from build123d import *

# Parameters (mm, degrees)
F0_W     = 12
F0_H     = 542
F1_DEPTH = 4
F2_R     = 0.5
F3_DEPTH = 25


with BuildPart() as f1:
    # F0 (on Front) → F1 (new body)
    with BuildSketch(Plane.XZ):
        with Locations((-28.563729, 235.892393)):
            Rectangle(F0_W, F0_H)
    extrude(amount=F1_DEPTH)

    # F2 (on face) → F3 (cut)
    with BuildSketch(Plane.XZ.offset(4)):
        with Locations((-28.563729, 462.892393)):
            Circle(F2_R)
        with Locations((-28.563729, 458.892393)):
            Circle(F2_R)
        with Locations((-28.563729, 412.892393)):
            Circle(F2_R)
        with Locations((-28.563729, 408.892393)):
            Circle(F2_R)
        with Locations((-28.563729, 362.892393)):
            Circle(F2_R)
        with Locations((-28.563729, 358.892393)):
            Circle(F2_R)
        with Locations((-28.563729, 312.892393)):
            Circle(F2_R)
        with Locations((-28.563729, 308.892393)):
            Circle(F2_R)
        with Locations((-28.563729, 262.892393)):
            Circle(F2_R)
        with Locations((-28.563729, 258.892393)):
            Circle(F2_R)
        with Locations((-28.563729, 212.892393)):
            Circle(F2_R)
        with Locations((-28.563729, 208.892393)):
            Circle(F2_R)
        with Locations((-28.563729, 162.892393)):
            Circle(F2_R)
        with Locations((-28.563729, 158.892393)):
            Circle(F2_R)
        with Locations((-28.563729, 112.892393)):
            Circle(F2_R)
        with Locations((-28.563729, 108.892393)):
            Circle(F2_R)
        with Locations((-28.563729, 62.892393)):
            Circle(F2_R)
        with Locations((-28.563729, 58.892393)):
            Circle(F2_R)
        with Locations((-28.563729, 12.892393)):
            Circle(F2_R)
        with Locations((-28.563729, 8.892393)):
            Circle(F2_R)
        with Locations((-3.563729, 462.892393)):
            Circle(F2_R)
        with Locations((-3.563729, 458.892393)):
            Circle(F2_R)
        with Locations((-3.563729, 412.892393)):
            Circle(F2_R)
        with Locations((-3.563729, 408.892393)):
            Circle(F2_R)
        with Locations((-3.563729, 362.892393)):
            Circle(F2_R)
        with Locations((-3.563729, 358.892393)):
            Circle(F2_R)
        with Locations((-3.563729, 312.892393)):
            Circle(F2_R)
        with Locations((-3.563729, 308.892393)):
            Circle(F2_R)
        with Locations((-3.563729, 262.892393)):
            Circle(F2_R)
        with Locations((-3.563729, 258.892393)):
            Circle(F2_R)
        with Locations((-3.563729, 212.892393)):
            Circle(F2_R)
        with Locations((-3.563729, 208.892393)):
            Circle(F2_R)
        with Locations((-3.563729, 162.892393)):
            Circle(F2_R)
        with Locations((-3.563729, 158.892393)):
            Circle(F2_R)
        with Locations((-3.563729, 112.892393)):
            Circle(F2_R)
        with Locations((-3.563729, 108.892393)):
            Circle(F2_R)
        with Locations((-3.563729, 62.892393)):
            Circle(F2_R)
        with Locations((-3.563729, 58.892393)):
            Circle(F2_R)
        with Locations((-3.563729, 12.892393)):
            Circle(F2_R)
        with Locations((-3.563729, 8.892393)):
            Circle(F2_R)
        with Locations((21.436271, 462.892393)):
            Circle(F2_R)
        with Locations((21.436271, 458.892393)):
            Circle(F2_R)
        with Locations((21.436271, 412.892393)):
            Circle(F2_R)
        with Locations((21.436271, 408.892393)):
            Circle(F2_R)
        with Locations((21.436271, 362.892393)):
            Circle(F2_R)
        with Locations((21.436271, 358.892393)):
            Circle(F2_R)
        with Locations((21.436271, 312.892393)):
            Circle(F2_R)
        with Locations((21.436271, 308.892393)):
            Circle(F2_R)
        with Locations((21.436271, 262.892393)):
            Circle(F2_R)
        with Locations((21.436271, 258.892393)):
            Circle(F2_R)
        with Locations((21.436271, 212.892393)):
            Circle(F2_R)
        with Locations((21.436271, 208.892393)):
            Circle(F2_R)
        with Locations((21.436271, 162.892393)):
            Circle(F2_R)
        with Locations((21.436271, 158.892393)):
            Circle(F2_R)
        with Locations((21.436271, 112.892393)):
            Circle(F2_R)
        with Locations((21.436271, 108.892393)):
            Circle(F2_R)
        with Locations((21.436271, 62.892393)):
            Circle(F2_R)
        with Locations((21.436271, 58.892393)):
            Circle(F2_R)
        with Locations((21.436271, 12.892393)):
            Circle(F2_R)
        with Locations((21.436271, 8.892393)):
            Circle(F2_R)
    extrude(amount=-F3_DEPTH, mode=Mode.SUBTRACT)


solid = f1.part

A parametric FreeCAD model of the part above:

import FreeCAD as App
import Part
import Sketcher
from FreeCAD import Vector

doc = App.newDocument("Part")
body = doc.addObject("PartDesign::Body", "Body")

sketch1 = body.newObject("Sketcher::SketchObject", "Sketch")
sketch1.AttachmentSupport = (doc.getObject("XZ_Plane"), [""])
sketch1.MapMode = "FlatFace"
sketch1.addGeometry(Part.LineSegment(Vector(-35, 507, 0), Vector(-35, -35, 0)), False)
sketch1.addGeometry(Part.LineSegment(Vector(-35, -35, 0), Vector(-23, -35, 0)), False)
sketch1.addGeometry(Part.LineSegment(Vector(-23, -35, 0), Vector(-23, 507, 0)), False)
sketch1.addGeometry(Part.LineSegment(Vector(-23, 507, 0), Vector(-35, 507, 0)), False)
sketch1.addConstraint(Sketcher.Constraint("Coincident", 0, 2, 1, 1))
sketch1.addConstraint(Sketcher.Constraint("Coincident", 1, 2, 2, 1))
sketch1.addConstraint(Sketcher.Constraint("Coincident", 2, 2, 3, 1))
sketch1.addConstraint(Sketcher.Constraint("Coincident", 3, 2, 0, 1))
sketch1.addConstraint(Sketcher.Constraint("Vertical", 0))
sketch1.addConstraint(Sketcher.Constraint("Horizontal", 1))
sketch1.addConstraint(Sketcher.Constraint("Vertical", 2))
sketch1.addConstraint(Sketcher.Constraint("Horizontal", 3))
sketch1.addConstraint(Sketcher.Constraint("DistanceX", 1, 1, 1, 2, 12.0))
sketch1.addConstraint(Sketcher.Constraint("DistanceY", 0, 2, 0, 1, 542.0))
sketch1.addConstraint(Sketcher.Constraint("DistanceX", 0, 2, -1, 1, 34.563729))
sketch1.addConstraint(Sketcher.Constraint("DistanceY", 0, 2, -1, 1, 35.107607))
pad1 = body.newObject("PartDesign::Pad", "Pad")
pad1.Profile = sketch1
pad1.Length = 4

sketch2 = body.newObject("Sketcher::SketchObject", "Sketch001")
sketch2.AttachmentSupport = (doc.getObject("XZ_Plane"), [""])
sketch2.MapMode = "FlatFace"
sketch2.AttachmentOffset = App.Placement(Vector(0, 0, 4), App.Rotation())
sketch2.addGeometry(Part.Circle(Vector(-28.6, 462.9, 0), Vector(0, 0, 1), 0.5), False)
sketch2.addGeometry(Part.Circle(Vector(-28.6, 458.9, 0), Vector(0, 0, 1), 0.5), False)
sketch2.addGeometry(Part.Circle(Vector(-28.6, 412.9, 0), Vector(0, 0, 1), 0.5), False)
sketch2.addGeometry(Part.Circle(Vector(-28.6, 408.9, 0), Vector(0, 0, 1), 0.5), False)
sketch2.addGeometry(Part.Circle(Vector(-28.6, 362.9, 0), Vector(0, 0, 1), 0.5), False)
sketch2.addGeometry(Part.Circle(Vector(-28.6, 358.9, 0), Vector(0, 0, 1), 0.5), False)
sketch2.addGeometry(Part.Circle(Vector(-28.6, 312.9, 0), Vector(0, 0, 1), 0.5), False)
sketch2.addGeometry(Part.Circle(Vector(-28.6, 308.9, 0), Vector(0, 0, 1), 0.5), False)
sketch2.addGeometry(Part.Circle(Vector(-28.6, 262.9, 0), Vector(0, 0, 1), 0.5), False)
sketch2.addGeometry(Part.Circle(Vector(-28.6, 258.9, 0), Vector(0, 0, 1), 0.5), False)
sketch2.addGeometry(Part.Circle(Vector(-28.6, 212.9, 0), Vector(0, 0, 1), 0.5), False)
sketch2.addGeometry(Part.Circle(Vector(-28.6, 208.9, 0), Vector(0, 0, 1), 0.5), False)
sketch2.addGeometry(Part.Circle(Vector(-28.6, 162.9, 0), Vector(0, 0, 1), 0.5), False)
sketch2.addGeometry(Part.Circle(Vector(-28.6, 158.9, 0), Vector(0, 0, 1), 0.5), False)
sketch2.addGeometry(Part.Circle(Vector(-28.6, 112.9, 0), Vector(0, 0, 1), 0.5), False)
sketch2.addGeometry(Part.Circle(Vector(-28.6, 108.9, 0), Vector(0, 0, 1), 0.5), False)
sketch2.addGeometry(Part.Circle(Vector(-28.6, 62.9, 0), Vector(0, 0, 1), 0.5), False)
sketch2.addGeometry(Part.Circle(Vector(-28.6, 58.9, 0), Vector(0, 0, 1), 0.5), False)
sketch2.addGeometry(Part.Circle(Vector(-28.6, 12.9, 0), Vector(0, 0, 1), 0.5), False)
sketch2.addGeometry(Part.Circle(Vector(-28.6, 8.9, 0), Vector(0, 0, 1), 0.5), False)
sketch2.addGeometry(Part.Circle(Vector(-3.6, 462.9, 0), Vector(0, 0, 1), 0.5), False)
sketch2.addGeometry(Part.Circle(Vector(-3.6, 458.9, 0), Vector(0, 0, 1), 0.5), False)
sketch2.addGeometry(Part.Circle(Vector(-3.6, 412.9, 0), Vector(0, 0, 1), 0.5), False)
sketch2.addGeometry(Part.Circle(Vector(-3.6, 408.9, 0), Vector(0, 0, 1), 0.5), False)
sketch2.addGeometry(Part.Circle(Vector(-3.6, 362.9, 0), Vector(0, 0, 1), 0.5), False)
sketch2.addGeometry(Part.Circle(Vector(-3.6, 358.9, 0), Vector(0, 0, 1), 0.5), False)
sketch2.addGeometry(Part.Circle(Vector(-3.6, 312.9, 0), Vector(0, 0, 1), 0.5), False)
sketch2.addGeometry(Part.Circle(Vector(-3.6, 308.9, 0), Vector(0, 0, 1), 0.5), False)
sketch2.addGeometry(Part.Circle(Vector(-3.6, 262.9, 0), Vector(0, 0, 1), 0.5), False)
sketch2.addGeometry(Part.Circle(Vector(-3.6, 258.9, 0), Vector(0, 0, 1), 0.5), False)
sketch2.addGeometry(Part.Circle(Vector(-3.6, 212.9, 0), Vector(0, 0, 1), 0.5), False)
sketch2.addGeometry(Part.Circle(Vector(-3.6, 208.9, 0), Vector(0, 0, 1), 0.5), False)
sketch2.addGeometry(Part.Circle(Vector(-3.6, 162.9, 0), Vector(0, 0, 1), 0.5), False)
sketch2.addGeometry(Part.Circle(Vector(-3.6, 158.9, 0), Vector(0, 0, 1), 0.5), False)
sketch2.addGeometry(Part.Circle(Vector(-3.6, 112.9, 0), Vector(0, 0, 1), 0.5), False)
sketch2.addGeometry(Part.Circle(Vector(-3.6, 108.9, 0), Vector(0, 0, 1), 0.5), False)
sketch2.addGeometry(Part.Circle(Vector(-3.6, 62.9, 0), Vector(0, 0, 1), 0.5), False)
sketch2.addGeometry(Part.Circle(Vector(-3.6, 58.9, 0), Vector(0, 0, 1), 0.5), False)
sketch2.addGeometry(Part.Circle(Vector(-3.6, 12.9, 0), Vector(0, 0, 1), 0.5), False)
sketch2.addGeometry(Part.Circle(Vector(-3.6, 8.9, 0), Vector(0, 0, 1), 0.5), False)
sketch2.addGeometry(Part.Circle(Vector(21.4, 462.9, 0), Vector(0, 0, 1), 0.5), False)
sketch2.addGeometry(Part.Circle(Vector(21.4, 458.9, 0), Vector(0, 0, 1), 0.5), False)
sketch2.addGeometry(Part.Circle(Vector(21.4, 412.9, 0), Vector(0, 0, 1), 0.5), False)
sketch2.addGeometry(Part.Circle(Vector(21.4, 408.9, 0), Vector(0, 0, 1), 0.5), False)
sketch2.addGeometry(Part.Circle(Vector(21.4, 362.9, 0), Vector(0, 0, 1), 0.5), False)
sketch2.addGeometry(Part.Circle(Vector(21.4, 358.9, 0), Vector(0, 0, 1), 0.5), False)
sketch2.addGeometry(Part.Circle(Vector(21.4, 312.9, 0), Vector(0, 0, 1), 0.5), False)
sketch2.addGeometry(Part.Circle(Vector(21.4, 308.9, 0), Vector(0, 0, 1), 0.5), False)
sketch2.addGeometry(Part.Circle(Vector(21.4, 262.9, 0), Vector(0, 0, 1), 0.5), False)
sketch2.addGeometry(Part.Circle(Vector(21.4, 258.9, 0), Vector(0, 0, 1), 0.5), False)
sketch2.addGeometry(Part.Circle(Vector(21.4, 212.9, 0), Vector(0, 0, 1), 0.5), False)
sketch2.addGeometry(Part.Circle(Vector(21.4, 208.9, 0), Vector(0, 0, 1), 0.5), False)
sketch2.addGeometry(Part.Circle(Vector(21.4, 162.9, 0), Vector(0, 0, 1), 0.5), False)
sketch2.addGeometry(Part.Circle(Vector(21.4, 158.9, 0), Vector(0, 0, 1), 0.5), False)
sketch2.addGeometry(Part.Circle(Vector(21.4, 112.9, 0), Vector(0, 0, 1), 0.5), False)
sketch2.addGeometry(Part.Circle(Vector(21.4, 108.9, 0), Vector(0, 0, 1), 0.5), False)
sketch2.addGeometry(Part.Circle(Vector(21.4, 62.9, 0), Vector(0, 0, 1), 0.5), False)
sketch2.addGeometry(Part.Circle(Vector(21.4, 58.9, 0), Vector(0, 0, 1), 0.5), False)
sketch2.addGeometry(Part.Circle(Vector(21.4, 12.9, 0), Vector(0, 0, 1), 0.5), False)
sketch2.addGeometry(Part.Circle(Vector(21.4, 8.9, 0), Vector(0, 0, 1), 0.5), False)
sketch2.addConstraint(Sketcher.Constraint("Equal", 0, 1))
sketch2.addConstraint(Sketcher.Constraint("Equal", 1, 2))
sketch2.addConstraint(Sketcher.Constraint("Equal", 2, 3))
sketch2.addConstraint(Sketcher.Constraint("Equal", 3, 4))
sketch2.addConstraint(Sketcher.Constraint("Equal", 4, 5))
sketch2.addConstraint(Sketcher.Constraint("Equal", 5, 6))
sketch2.addConstraint(Sketcher.Constraint("Equal", 6, 7))
sketch2.addConstraint(Sketcher.Constraint("Equal", 7, 8))
sketch2.addConstraint(Sketcher.Constraint("Equal", 8, 9))
sketch2.addConstraint(Sketcher.Constraint("Equal", 9, 10))
sketch2.addConstraint(Sketcher.Constraint("Equal", 10, 11))
sketch2.addConstraint(Sketcher.Constraint("Equal", 11, 12))
sketch2.addConstraint(Sketcher.Constraint("Equal", 12, 13))
sketch2.addConstraint(Sketcher.Constraint("Equal", 13, 14))
sketch2.addConstraint(Sketcher.Constraint("Equal", 14, 15))
sketch2.addConstraint(Sketcher.Constraint("Equal", 15, 16))
sketch2.addConstraint(Sketcher.Constraint("Equal", 16, 17))
sketch2.addConstraint(Sketcher.Constraint("Equal", 17, 18))
sketch2.addConstraint(Sketcher.Constraint("Equal", 18, 19))
sketch2.addConstraint(Sketcher.Constraint("Equal", 19, 20))
sketch2.addConstraint(Sketcher.Constraint("Equal", 20, 21))
sketch2.addConstraint(Sketcher.Constraint("Equal", 21, 22))
sketch2.addConstraint(Sketcher.Constraint("Equal", 22, 23))
sketch2.addConstraint(Sketcher.Constraint("Equal", 23, 24))
sketch2.addConstraint(Sketcher.Constraint("Equal", 24, 25))
sketch2.addConstraint(Sketcher.Constraint("Equal", 25, 26))
sketch2.addConstraint(Sketcher.Constraint("Equal", 26, 27))
sketch2.addConstraint(Sketcher.Constraint("Equal", 27, 28))
sketch2.addConstraint(Sketcher.Constraint("Equal", 28, 29))
sketch2.addConstraint(Sketcher.Constraint("Equal", 29, 30))
sketch2.addConstraint(Sketcher.Constraint("Equal", 30, 31))
sketch2.addConstraint(Sketcher.Constraint("Equal", 31, 32))
sketch2.addConstraint(Sketcher.Constraint("Equal", 32, 33))
sketch2.addConstraint(Sketcher.Constraint("Equal", 33, 34))
sketch2.addConstraint(Sketcher.Constraint("Equal", 34, 35))
sketch2.addConstraint(Sketcher.Constraint("Equal", 35, 36))
sketch2.addConstraint(Sketcher.Constraint("Equal", 36, 37))
sketch2.addConstraint(Sketcher.Constraint("Equal", 37, 38))
sketch2.addConstraint(Sketcher.Constraint("Equal", 38, 39))
sketch2.addConstraint(Sketcher.Constraint("Equal", 39, 40))
sketch2.addConstraint(Sketcher.Constraint("Equal", 40, 41))
sketch2.addConstraint(Sketcher.Constraint("Equal", 41, 42))
sketch2.addConstraint(Sketcher.Constraint("Equal", 42, 43))
sketch2.addConstraint(Sketcher.Constraint("Equal", 43, 44))
sketch2.addConstraint(Sketcher.Constraint("Equal", 44, 45))
sketch2.addConstraint(Sketcher.Constraint("Equal", 45, 46))
sketch2.addConstraint(Sketcher.Constraint("Equal", 46, 47))
sketch2.addConstraint(Sketcher.Constraint("Equal", 47, 48))
sketch2.addConstraint(Sketcher.Constraint("Equal", 48, 49))
sketch2.addConstraint(Sketcher.Constraint("Equal", 49, 50))
sketch2.addConstraint(Sketcher.Constraint("Equal", 50, 51))
sketch2.addConstraint(Sketcher.Constraint("Equal", 51, 52))
sketch2.addConstraint(Sketcher.Constraint("Equal", 52, 53))
sketch2.addConstraint(Sketcher.Constraint("Equal", 53, 54))
sketch2.addConstraint(Sketcher.Constraint("Equal", 54, 55))
sketch2.addConstraint(Sketcher.Constraint("Equal", 55, 56))
sketch2.addConstraint(Sketcher.Constraint("Equal", 56, 57))
sketch2.addConstraint(Sketcher.Constraint("Equal", 57, 58))
sketch2.addConstraint(Sketcher.Constraint("Equal", 58, 59))
sketch2.addConstraint(Sketcher.Constraint("Horizontal", 0, 3, 20, 3))
sketch2.addConstraint(Sketcher.Constraint("Horizontal", 1, 3, 21, 3))
sketch2.addConstraint(Sketcher.Constraint("Horizontal", 2, 3, 22, 3))
sketch2.addConstraint(Sketcher.Constraint("Horizontal", 3, 3, 23, 3))
sketch2.addConstraint(Sketcher.Constraint("Horizontal", 4, 3, 24, 3))
sketch2.addConstraint(Sketcher.Constraint("Horizontal", 5, 3, 25, 3))
sketch2.addConstraint(Sketcher.Constraint("Horizontal", 6, 3, 26, 3))
sketch2.addConstraint(Sketcher.Constraint("Horizontal", 7, 3, 27, 3))
sketch2.addConstraint(Sketcher.Constraint("Horizontal", 8, 3, 28, 3))
sketch2.addConstraint(Sketcher.Constraint("Horizontal", 9, 3, 29, 3))
sketch2.addConstraint(Sketcher.Constraint("Horizontal", 10, 3, 30, 3))
sketch2.addConstraint(Sketcher.Constraint("Horizontal", 11, 3, 31, 3))
sketch2.addConstraint(Sketcher.Constraint("Horizontal", 12, 3, 32, 3))
sketch2.addConstraint(Sketcher.Constraint("Horizontal", 13, 3, 33, 3))
sketch2.addConstraint(Sketcher.Constraint("Horizontal", 14, 3, 34, 3))
sketch2.addConstraint(Sketcher.Constraint("Horizontal", 15, 3, 35, 3))
sketch2.addConstraint(Sketcher.Constraint("Horizontal", 16, 3, 36, 3))
sketch2.addConstraint(Sketcher.Constraint("Horizontal", 17, 3, 37, 3))
sketch2.addConstraint(Sketcher.Constraint("Horizontal", 18, 3, 38, 3))
sketch2.addConstraint(Sketcher.Constraint("Horizontal", 19, 3, 39, 3))
sketch2.addConstraint(Sketcher.Constraint("Horizontal", 20, 3, 40, 3))
sketch2.addConstraint(Sketcher.Constraint("Horizontal", 21, 3, 41, 3))
sketch2.addConstraint(Sketcher.Constraint("Horizontal", 22, 3, 42, 3))
sketch2.addConstraint(Sketcher.Constraint("Horizontal", 23, 3, 43, 3))
sketch2.addConstraint(Sketcher.Constraint("Horizontal", 24, 3, 44, 3))
sketch2.addConstraint(Sketcher.Constraint("Horizontal", 25, 3, 45, 3))
sketch2.addConstraint(Sketcher.Constraint("Horizontal", 26, 3, 46, 3))
sketch2.addConstraint(Sketcher.Constraint("Horizontal", 27, 3, 47, 3))
sketch2.addConstraint(Sketcher.Constraint("Horizontal", 28, 3, 48, 3))
sketch2.addConstraint(Sketcher.Constraint("Horizontal", 29, 3, 49, 3))
sketch2.addConstraint(Sketcher.Constraint("Horizontal", 30, 3, 50, 3))
sketch2.addConstraint(Sketcher.Constraint("Horizontal", 31, 3, 51, 3))
sketch2.addConstraint(Sketcher.Constraint("Horizontal", 32, 3, 52, 3))
sketch2.addConstraint(Sketcher.Constraint("Horizontal", 33, 3, 53, 3))
sketch2.addConstraint(Sketcher.Constraint("Horizontal", 34, 3, 54, 3))
sketch2.addConstraint(Sketcher.Constraint("Horizontal", 35, 3, 55, 3))
sketch2.addConstraint(Sketcher.Constraint("Horizontal", 36, 3, 56, 3))
sketch2.addConstraint(Sketcher.Constraint("Horizontal", 37, 3, 57, 3))
sketch2.addConstraint(Sketcher.Constraint("Horizontal", 38, 3, 58, 3))
sketch2.addConstraint(Sketcher.Constraint("Horizontal", 39, 3, 59, 3))
sketch2.addConstraint(Sketcher.Constraint("Vertical", 0, 3, 1, 3))
sketch2.addConstraint(Sketcher.Constraint("Vertical", 1, 3, 2, 3))
sketch2.addConstraint(Sketcher.Constraint("Vertical", 2, 3, 3, 3))
sketch2.addConstraint(Sketcher.Constraint("Vertical", 3, 3, 4, 3))
sketch2.addConstraint(Sketcher.Constraint("Vertical", 4, 3, 5, 3))
sketch2.addConstraint(Sketcher.Constraint("Vertical", 5, 3, 6, 3))
sketch2.addConstraint(Sketcher.Constraint("Vertical", 6, 3, 7, 3))
sketch2.addConstraint(Sketcher.Constraint("Vertical", 7, 3, 8, 3))
sketch2.addConstraint(Sketcher.Constraint("Vertical", 8, 3, 9, 3))
sketch2.addConstraint(Sketcher.Constraint("Vertical", 9, 3, 10, 3))
sketch2.addConstraint(Sketcher.Constraint("Vertical", 10, 3, 11, 3))
sketch2.addConstraint(Sketcher.Constraint("Vertical", 11, 3, 12, 3))
sketch2.addConstraint(Sketcher.Constraint("Vertical", 12, 3, 13, 3))
sketch2.addConstraint(Sketcher.Constraint("Vertical", 13, 3, 14, 3))
sketch2.addConstraint(Sketcher.Constraint("Vertical", 14, 3, 15, 3))
sketch2.addConstraint(Sketcher.Constraint("Vertical", 15, 3, 16, 3))
sketch2.addConstraint(Sketcher.Constraint("Vertical", 16, 3, 17, 3))
sketch2.addConstraint(Sketcher.Constraint("Vertical", 17, 3, 18, 3))
sketch2.addConstraint(Sketcher.Constraint("Vertical", 18, 3, 19, 3))
sketch2.addConstraint(Sketcher.Constraint("Vertical", 20, 3, 21, 3))
sketch2.addConstraint(Sketcher.Constraint("Vertical", 21, 3, 22, 3))
sketch2.addConstraint(Sketcher.Constraint("Vertical", 22, 3, 23, 3))
sketch2.addConstraint(Sketcher.Constraint("Vertical", 23, 3, 24, 3))
sketch2.addConstraint(Sketcher.Constraint("Vertical", 24, 3, 25, 3))
sketch2.addConstraint(Sketcher.Constraint("Vertical", 25, 3, 26, 3))
sketch2.addConstraint(Sketcher.Constraint("Vertical", 26, 3, 27, 3))
sketch2.addConstraint(Sketcher.Constraint("Vertical", 27, 3, 28, 3))
sketch2.addConstraint(Sketcher.Constraint("Vertical", 28, 3, 29, 3))
sketch2.addConstraint(Sketcher.Constraint("Vertical", 29, 3, 30, 3))
sketch2.addConstraint(Sketcher.Constraint("Vertical", 30, 3, 31, 3))
sketch2.addConstraint(Sketcher.Constraint("Vertical", 31, 3, 32, 3))
sketch2.addConstraint(Sketcher.Constraint("Vertical", 32, 3, 33, 3))
sketch2.addConstraint(Sketcher.Constraint("Vertical", 33, 3, 34, 3))
sketch2.addConstraint(Sketcher.Constraint("Vertical", 34, 3, 35, 3))
sketch2.addConstraint(Sketcher.Constraint("Vertical", 35, 3, 36, 3))
sketch2.addConstraint(Sketcher.Constraint("Vertical", 36, 3, 37, 3))
sketch2.addConstraint(Sketcher.Constraint("Vertical", 37, 3, 38, 3))
sketch2.addConstraint(Sketcher.Constraint("Vertical", 38, 3, 39, 3))
sketch2.addConstraint(Sketcher.Constraint("Vertical", 40, 3, 41, 3))
sketch2.addConstraint(Sketcher.Constraint("Vertical", 41, 3, 42, 3))
sketch2.addConstraint(Sketcher.Constraint("Vertical", 42, 3, 43, 3))
sketch2.addConstraint(Sketcher.Constraint("Vertical", 43, 3, 44, 3))
sketch2.addConstraint(Sketcher.Constraint("Vertical", 44, 3, 45, 3))
sketch2.addConstraint(Sketcher.Constraint("Vertical", 45, 3, 46, 3))
sketch2.addConstraint(Sketcher.Constraint("Vertical", 46, 3, 47, 3))
sketch2.addConstraint(Sketcher.Constraint("Vertical", 47, 3, 48, 3))
sketch2.addConstraint(Sketcher.Constraint("Vertical", 48, 3, 49, 3))
sketch2.addConstraint(Sketcher.Constraint("Vertical", 49, 3, 50, 3))
sketch2.addConstraint(Sketcher.Constraint("Vertical", 50, 3, 51, 3))
sketch2.addConstraint(Sketcher.Constraint("Vertical", 51, 3, 52, 3))
sketch2.addConstraint(Sketcher.Constraint("Vertical", 52, 3, 53, 3))
sketch2.addConstraint(Sketcher.Constraint("Vertical", 53, 3, 54, 3))
sketch2.addConstraint(Sketcher.Constraint("Vertical", 54, 3, 55, 3))
sketch2.addConstraint(Sketcher.Constraint("Vertical", 55, 3, 56, 3))
sketch2.addConstraint(Sketcher.Constraint("Vertical", 56, 3, 57, 3))
sketch2.addConstraint(Sketcher.Constraint("Vertical", 57, 3, 58, 3))
sketch2.addConstraint(Sketcher.Constraint("Vertical", 58, 3, 59, 3))
sketch2.addConstraint(Sketcher.Constraint("Diameter", 0, 1.0))
sketch2.addConstraint(Sketcher.Constraint("DistanceY", 1, 3, 0, 3, 4.0))
sketch2.addConstraint(Sketcher.Constraint("DistanceY", 2, 3, 1, 3, 46.0))
sketch2.addConstraint(Sketcher.Constraint("DistanceY", 3, 3, 2, 3, 4.0))
sketch2.addConstraint(Sketcher.Constraint("DistanceY", 4, 3, 3, 3, 46.0))
sketch2.addConstraint(Sketcher.Constraint("DistanceY", 5, 3, 4, 3, 4.0))
sketch2.addConstraint(Sketcher.Constraint("DistanceY", 6, 3, 5, 3, 46.0))
sketch2.addConstraint(Sketcher.Constraint("DistanceY", 7, 3, 6, 3, 4.0))
sketch2.addConstraint(Sketcher.Constraint("DistanceY", 8, 3, 7, 3, 46.0))
sketch2.addConstraint(Sketcher.Constraint("DistanceY", 9, 3, 8, 3, 4.0))
sketch2.addConstraint(Sketcher.Constraint("DistanceY", 10, 3, 9, 3, 46.0))
sketch2.addConstraint(Sketcher.Constraint("DistanceY", 11, 3, 10, 3, 4.0))
sketch2.addConstraint(Sketcher.Constraint("DistanceY", 12, 3, 11, 3, 46.0))
sketch2.addConstraint(Sketcher.Constraint("DistanceY", 13, 3, 12, 3, 4.0))
sketch2.addConstraint(Sketcher.Constraint("DistanceY", 14, 3, 13, 3, 46.0))
sketch2.addConstraint(Sketcher.Constraint("DistanceY", 15, 3, 14, 3, 4.0))
sketch2.addConstraint(Sketcher.Constraint("DistanceY", 16, 3, 15, 3, 46.0))
sketch2.addConstraint(Sketcher.Constraint("DistanceY", 17, 3, 16, 3, 4.0))
sketch2.addConstraint(Sketcher.Constraint("DistanceY", 18, 3, 17, 3, 46.0))
sketch2.addConstraint(Sketcher.Constraint("DistanceY", 19, 3, 18, 3, 4.0))
sketch2.addConstraint(Sketcher.Constraint("DistanceX", 0, 3, 20, 3, 25.0))
sketch2.addConstraint(Sketcher.Constraint("DistanceX", 20, 3, 40, 3, 25.0))
sketch2.addConstraint(Sketcher.Constraint("DistanceX", 0, 3, -1, 1, 28.563729))
sketch2.addConstraint(Sketcher.Constraint("DistanceY", -1, 1, 0, 3, 462.892393))
pocket1 = body.newObject("PartDesign::Pocket", "Pocket")
pocket1.Profile = sketch2
pocket1.Length = 25

doc.recompute()
